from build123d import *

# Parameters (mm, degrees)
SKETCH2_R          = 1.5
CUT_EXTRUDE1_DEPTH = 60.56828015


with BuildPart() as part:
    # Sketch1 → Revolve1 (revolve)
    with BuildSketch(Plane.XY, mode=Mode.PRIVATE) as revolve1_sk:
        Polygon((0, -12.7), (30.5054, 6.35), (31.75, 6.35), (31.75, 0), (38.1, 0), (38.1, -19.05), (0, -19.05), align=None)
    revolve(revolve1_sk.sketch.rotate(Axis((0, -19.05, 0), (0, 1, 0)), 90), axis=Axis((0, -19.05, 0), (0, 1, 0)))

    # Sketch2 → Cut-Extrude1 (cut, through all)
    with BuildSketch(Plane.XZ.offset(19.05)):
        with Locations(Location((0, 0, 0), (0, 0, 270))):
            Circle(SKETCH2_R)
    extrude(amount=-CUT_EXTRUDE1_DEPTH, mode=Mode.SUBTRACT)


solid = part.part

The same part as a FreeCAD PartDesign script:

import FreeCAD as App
import Part
import Sketcher

V = App.Vector
Q = App.Units.Quantity

doc = App.newDocument("Part")
body = doc.addObject("PartDesign::Body", "Body")

# Sketch on XY plane
sketch1 = body.newObject("Sketcher::SketchObject", "Sketch")
sketch1.AttachmentSupport = (doc.getObject("XY_Plane"), [""])
sketch1.MapMode = "FlatFace"
sketch1.addGeometry(Part.LineSegment(V(30.5054, 6.35, 0), V(0, -12.7, 0)), False)
sketch1.addGeometry(Part.LineSegment(V(0, -12.7, 0), V(0, -19.05, 0)), False)
sketch1.addGeometry(Part.LineSegment(V(0, -19.05, 0), V(38.1, -19.05, 0)), False)
sketch1.addGeometry(Part.LineSegment(V(38.1, -19.05, 0), V(38.1, 0, 0)), False)
sketch1.addGeometry(Part.LineSegment(V(38.1, 0, 0), V(31.75, 0, 0)), False)
sketch1.addGeometry(Part.LineSegment(V(31.75, 0, 0), V(31.75, 6.35, 0)), False)
sketch1.addGeometry(Part.LineSegment(V(31.75, 6.35, 0), V(30.5054, 6.35, 0)), False)
sketch1.addConstraint(Sketcher.Constraint("Coincident", 0, 2, 1, 1))
sketch1.addConstraint(Sketcher.Constraint("Coincident", 1, 2, 2, 1))
sketch1.addConstraint(Sketcher.Constraint("Coincident", 2, 2, 3, 1))
sketch1.addConstraint(Sketcher.Constraint("Coincident", 3, 2, 4, 1))
sketch1.addConstraint(Sketcher.Constraint("Coincident", 4, 2, 5, 1))
sketch1.addConstraint(Sketcher.Constraint("Coincident", 5, 2, 6, 1))
sketch1.addConstraint(Sketcher.Constraint("Coincident", 6, 2, 0, 1))
sketch1.addConstraint(Sketcher.Constraint("Vertical", 1))
sketch1.addConstraint(Sketcher.Constraint("Horizontal", 2))
sketch1.addConstraint(Sketcher.Constraint("Vertical", 3))
sketch1.addConstraint(Sketcher.Constraint("Horizontal", 4))
sketch1.addConstraint(Sketcher.Constraint("Vertical", 5))
sketch1.addConstraint(Sketcher.Constraint("Horizontal", 6))
sketch1.addConstraint(Sketcher.Constraint("PointOnObject", 0, 2, -2))
sketch1.addConstraint(Sketcher.Constraint("PointOnObject", 3, 2, -1))
sketch1.addConstraint(Sketcher.Constraint("Equal", 4, 1))
sketch1.addConstraint(Sketcher.Constraint("Equal", 1, 5))
sketch1.addConstraint(Sketcher.Constraint("DistanceX", 2, 1, 2, 2, Q("1.5 in")))
sketch1.addConstraint(Sketcher.Constraint("DistanceY", 2, 2, 5, 2, Q("1 in")))
sketch1.addConstraint(Sketcher.Constraint("DistanceX", 4, 2, 4, 1, Q("0.25 in")))
sketch1.addConstraint(Sketcher.Constraint("DistanceX", 6, 2, 6, 1, Q("0.049 in")))
revolution = body.newObject("PartDesign::Revolution", "Revolution")
revolution.Profile = sketch1
revolution.ReferenceAxis = (sketch1, ["V_Axis"])
revolution.Angle = 360

# Sketch on XZ plane
sketch2 = body.newObject("Sketcher::SketchObject", "Sketch001")
sketch2.AttachmentSupport = (doc.getObject("XZ_Plane"), [""])
sketch2.MapMode = "FlatFace"
sketch2.AttachmentOffset = App.Placement(V(0, 0, 0.75 * 25.4), App.Rotation())
sketch2.addGeometry(Part.Circle(V(0, 0, 0), V(0, 0, 1), 1.5), False)
sketch2.addConstraint(Sketcher.Constraint("Coincident", 0, 3, -1, 1))
sketch2.addConstraint(Sketcher.Constraint("Diameter", 0, 3.0))
pocket1 = body.newObject("PartDesign::Pocket", "Pocket")
pocket1.Profile = sketch2
pocket1.Type = "ThroughAll"

doc.recompute()
